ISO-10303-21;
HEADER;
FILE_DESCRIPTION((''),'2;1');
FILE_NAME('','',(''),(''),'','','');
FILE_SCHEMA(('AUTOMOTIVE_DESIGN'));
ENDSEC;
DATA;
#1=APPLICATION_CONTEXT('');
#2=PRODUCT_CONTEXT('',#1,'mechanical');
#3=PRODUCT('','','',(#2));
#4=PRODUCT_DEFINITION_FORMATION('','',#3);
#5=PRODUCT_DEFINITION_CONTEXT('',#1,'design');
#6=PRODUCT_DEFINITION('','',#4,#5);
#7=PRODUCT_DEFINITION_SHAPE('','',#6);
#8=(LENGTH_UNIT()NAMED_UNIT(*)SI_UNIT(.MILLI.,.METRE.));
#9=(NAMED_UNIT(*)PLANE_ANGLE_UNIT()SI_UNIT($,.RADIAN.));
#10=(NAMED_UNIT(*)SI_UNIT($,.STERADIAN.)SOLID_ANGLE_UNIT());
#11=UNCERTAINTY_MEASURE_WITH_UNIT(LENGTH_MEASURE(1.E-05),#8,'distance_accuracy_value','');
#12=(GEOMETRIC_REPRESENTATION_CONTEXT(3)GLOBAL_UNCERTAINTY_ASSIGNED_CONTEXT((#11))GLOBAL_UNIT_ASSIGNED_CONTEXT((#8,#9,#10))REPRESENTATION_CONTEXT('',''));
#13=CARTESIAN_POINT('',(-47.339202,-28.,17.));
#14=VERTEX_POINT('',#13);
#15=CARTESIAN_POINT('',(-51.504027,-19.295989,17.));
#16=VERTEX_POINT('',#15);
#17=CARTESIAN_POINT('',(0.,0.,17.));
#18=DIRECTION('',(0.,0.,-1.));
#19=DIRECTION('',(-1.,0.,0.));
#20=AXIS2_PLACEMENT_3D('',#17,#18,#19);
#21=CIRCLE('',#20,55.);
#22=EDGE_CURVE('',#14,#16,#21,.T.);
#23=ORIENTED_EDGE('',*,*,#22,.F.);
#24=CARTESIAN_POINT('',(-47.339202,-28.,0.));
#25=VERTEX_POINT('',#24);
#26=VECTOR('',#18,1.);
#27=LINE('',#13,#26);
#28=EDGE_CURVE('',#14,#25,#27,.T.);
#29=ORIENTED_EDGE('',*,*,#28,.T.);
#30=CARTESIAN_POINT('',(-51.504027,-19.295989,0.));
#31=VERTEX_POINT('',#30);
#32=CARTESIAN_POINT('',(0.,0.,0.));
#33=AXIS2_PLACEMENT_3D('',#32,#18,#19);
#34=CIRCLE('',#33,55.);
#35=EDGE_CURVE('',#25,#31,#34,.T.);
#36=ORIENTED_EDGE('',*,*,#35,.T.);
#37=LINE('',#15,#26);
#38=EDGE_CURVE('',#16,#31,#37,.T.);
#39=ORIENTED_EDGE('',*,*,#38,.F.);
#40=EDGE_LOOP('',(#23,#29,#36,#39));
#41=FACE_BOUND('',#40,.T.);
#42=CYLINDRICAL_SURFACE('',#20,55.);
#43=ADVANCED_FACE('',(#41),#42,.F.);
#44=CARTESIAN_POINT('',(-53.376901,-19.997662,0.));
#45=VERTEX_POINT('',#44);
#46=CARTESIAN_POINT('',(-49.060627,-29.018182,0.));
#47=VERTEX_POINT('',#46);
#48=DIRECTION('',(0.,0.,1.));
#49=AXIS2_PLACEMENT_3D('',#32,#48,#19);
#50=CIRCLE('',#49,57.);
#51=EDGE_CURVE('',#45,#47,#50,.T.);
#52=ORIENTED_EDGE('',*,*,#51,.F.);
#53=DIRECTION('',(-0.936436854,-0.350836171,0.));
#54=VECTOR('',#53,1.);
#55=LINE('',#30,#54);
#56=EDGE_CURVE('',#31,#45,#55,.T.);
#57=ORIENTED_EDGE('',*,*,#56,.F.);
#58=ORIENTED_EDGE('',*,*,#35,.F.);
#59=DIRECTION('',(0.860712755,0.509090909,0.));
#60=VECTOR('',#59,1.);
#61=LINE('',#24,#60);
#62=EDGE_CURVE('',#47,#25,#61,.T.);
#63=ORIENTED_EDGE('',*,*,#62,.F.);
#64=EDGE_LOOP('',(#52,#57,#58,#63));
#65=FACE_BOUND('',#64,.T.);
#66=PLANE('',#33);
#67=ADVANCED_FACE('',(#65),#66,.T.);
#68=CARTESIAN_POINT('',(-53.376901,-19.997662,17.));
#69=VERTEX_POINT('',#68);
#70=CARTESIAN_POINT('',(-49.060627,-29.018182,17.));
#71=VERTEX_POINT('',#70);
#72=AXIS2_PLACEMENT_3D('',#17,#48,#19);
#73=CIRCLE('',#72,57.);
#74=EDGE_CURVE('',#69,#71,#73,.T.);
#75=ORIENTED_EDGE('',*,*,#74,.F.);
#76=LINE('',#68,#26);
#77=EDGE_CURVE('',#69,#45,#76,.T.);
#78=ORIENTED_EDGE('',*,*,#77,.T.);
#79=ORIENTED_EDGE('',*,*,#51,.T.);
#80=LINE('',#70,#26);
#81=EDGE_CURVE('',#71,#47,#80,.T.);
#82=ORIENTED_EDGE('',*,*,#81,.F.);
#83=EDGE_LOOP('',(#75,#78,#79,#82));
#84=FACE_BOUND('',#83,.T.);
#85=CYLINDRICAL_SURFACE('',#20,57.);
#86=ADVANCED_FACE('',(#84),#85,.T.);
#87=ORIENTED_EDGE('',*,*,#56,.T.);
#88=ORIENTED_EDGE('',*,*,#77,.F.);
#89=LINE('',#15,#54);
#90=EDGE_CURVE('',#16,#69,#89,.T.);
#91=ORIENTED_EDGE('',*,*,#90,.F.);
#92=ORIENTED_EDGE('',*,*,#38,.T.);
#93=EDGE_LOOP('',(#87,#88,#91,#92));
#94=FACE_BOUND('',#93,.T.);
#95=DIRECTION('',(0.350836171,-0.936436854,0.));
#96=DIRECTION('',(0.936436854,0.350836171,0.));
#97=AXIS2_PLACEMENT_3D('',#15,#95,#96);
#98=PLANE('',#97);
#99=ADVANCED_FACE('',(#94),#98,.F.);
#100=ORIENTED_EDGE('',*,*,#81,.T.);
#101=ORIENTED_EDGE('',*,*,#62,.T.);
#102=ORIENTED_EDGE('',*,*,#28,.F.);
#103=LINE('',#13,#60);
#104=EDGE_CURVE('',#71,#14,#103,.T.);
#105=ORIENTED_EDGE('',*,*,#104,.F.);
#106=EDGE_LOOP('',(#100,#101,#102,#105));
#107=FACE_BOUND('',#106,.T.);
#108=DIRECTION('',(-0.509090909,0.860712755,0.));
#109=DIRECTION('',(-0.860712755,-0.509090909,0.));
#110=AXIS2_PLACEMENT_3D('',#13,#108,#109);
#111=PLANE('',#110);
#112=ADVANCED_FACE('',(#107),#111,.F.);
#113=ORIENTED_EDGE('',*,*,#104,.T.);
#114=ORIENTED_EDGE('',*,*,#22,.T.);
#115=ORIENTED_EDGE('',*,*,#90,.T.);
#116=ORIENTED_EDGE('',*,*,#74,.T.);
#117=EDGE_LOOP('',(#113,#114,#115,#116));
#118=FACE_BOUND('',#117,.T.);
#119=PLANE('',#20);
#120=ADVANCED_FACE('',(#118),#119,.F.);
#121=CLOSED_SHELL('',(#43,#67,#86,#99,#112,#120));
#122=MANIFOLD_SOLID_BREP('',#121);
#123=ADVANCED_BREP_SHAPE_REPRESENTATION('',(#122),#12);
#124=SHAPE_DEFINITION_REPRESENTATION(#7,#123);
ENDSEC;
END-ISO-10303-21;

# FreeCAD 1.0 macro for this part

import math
import FreeCAD as App
import Part
import Sketcher
from FreeCAD import Vector

doc = App.newDocument("Part")
body = doc.addObject("PartDesign::Body", "Body")

sketch1 = body.newObject("Sketcher::SketchObject", "Sketch")
sketch1.AttachmentSupport = (doc.getObject("XY_Plane"), [""])
sketch1.MapMode = "FlatFace"
sketch1.addGeometry([
    Part.LineSegment(Vector(-51.5, -19.3, 0), Vector(-53.4, -20, 0)),
    Part.ArcOfCircle(Part.Circle(Vector(0, 0, 0), Vector(0, 0, 1), 57), math.radians(-159.46), math.radians(-149.4)),
    Part.LineSegment(Vector(-49.1, -29, 0), Vector(-47.3, -28, 0)),
    Part.ArcOfCircle(Part.Circle(Vector(0, 0, 0), Vector(0, 0, 1), 55), math.radians(-159.46), math.radians(-149.4)),
], False)
sketch1.addConstraint([
    Sketcher.Constraint("Coincident", 0, 2, 1, 1),
    Sketcher.Constraint("Coincident", 1, 2, 2, 1),
    Sketcher.Constraint("Coincident", 2, 2, 3, 2),
    Sketcher.Constraint("Coincident", 3, 1, 0, 1),
    Sketcher.Constraint("Coincident", 1, 3, -1, 1),
    Sketcher.Constraint("Coincident", 3, 3, -1, 1),
    Sketcher.Constraint("Radius", 1, 57.0),
    Sketcher.Constraint("Radius", 3, 55.0),
    Sketcher.Constraint("DistanceY", 2, 2, -1, 1, 28.0),
    Sketcher.Constraint("DistanceX", 0, 2, -1, 1, 53.376901),
    Sketcher.Constraint("DistanceX", 3, 1, 1, 2, 2.4434),
    Sketcher.Constraint("DistanceY", 1, 2, -1, 1, 29.018182),
])
pad1 = body.newObject("PartDesign::Pad", "Pad")
pad1.Profile = sketch1
pad1.Length = 17

doc.recompute()
